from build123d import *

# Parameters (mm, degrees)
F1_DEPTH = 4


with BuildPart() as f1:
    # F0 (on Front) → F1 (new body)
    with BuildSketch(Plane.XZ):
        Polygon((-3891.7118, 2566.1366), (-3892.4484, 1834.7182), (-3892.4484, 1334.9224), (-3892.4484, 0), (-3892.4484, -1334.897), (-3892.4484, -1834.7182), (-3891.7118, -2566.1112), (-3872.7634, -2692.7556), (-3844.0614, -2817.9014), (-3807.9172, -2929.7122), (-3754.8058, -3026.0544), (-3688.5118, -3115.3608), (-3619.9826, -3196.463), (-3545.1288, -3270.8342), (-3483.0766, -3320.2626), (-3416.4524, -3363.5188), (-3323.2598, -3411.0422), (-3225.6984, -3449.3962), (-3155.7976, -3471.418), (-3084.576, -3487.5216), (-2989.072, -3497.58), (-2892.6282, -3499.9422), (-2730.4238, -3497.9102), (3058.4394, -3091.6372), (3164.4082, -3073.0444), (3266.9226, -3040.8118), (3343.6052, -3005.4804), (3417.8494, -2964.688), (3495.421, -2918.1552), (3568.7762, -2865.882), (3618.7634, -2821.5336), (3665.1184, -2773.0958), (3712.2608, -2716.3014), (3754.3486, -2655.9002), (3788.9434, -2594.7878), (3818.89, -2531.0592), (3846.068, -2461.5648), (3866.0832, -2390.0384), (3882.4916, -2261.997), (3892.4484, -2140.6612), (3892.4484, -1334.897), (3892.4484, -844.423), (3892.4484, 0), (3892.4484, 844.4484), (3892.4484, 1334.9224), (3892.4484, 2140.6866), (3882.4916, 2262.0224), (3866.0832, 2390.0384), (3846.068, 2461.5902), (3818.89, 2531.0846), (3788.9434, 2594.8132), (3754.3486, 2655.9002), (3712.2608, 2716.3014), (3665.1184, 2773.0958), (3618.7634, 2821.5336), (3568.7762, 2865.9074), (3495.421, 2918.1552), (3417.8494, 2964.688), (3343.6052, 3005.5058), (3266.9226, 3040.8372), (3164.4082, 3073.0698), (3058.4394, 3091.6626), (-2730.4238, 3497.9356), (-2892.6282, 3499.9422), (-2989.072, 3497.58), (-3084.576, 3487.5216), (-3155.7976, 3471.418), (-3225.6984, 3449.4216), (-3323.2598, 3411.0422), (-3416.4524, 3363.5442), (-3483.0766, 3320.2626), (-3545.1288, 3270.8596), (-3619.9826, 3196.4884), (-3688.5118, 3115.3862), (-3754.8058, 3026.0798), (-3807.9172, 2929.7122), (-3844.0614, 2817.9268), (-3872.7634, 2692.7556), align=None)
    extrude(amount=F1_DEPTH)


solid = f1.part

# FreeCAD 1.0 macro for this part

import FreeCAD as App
import Part
import Sketcher
from FreeCAD import Vector
Q = App.Units.Quantity


def add_polygon(sketch, points):
    """Adds a closed chain of lines whose ends are joined by coincident constraints."""
    first, n = sketch.GeometryCount, len(points)
    for a, b in zip(points, points[1:] + points[:1]):
        sketch.addGeometry(Part.LineSegment(App.Vector(*a, 0), App.Vector(*b, 0)), False)
    for i in range(n):
        sketch.addConstraint(Sketcher.Constraint("Coincident", first + i, 2, first + (i + 1) % n, 1))

doc = App.newDocument("Part")
params = doc.addObject("Spreadsheet::Sheet", "Params")
for row, (alias, value) in enumerate([
    ("sketch1_height", "144.466 in"),
    ("sketch1_height2", "168.557 in"),
    ("pad1_length", "4 mm"),
], start=1):
    params.set(f"A{row}", alias)
    params.set(f"B{row}", "=" + value)
    params.setAlias(f"B{row}", alias)

body = doc.addObject("PartDesign::Body", "Body")

# Sketch on XZ plane
sketch1 = body.newObject("Sketcher::SketchObject", "Sketch")
sketch1.AttachmentSupport = (doc.getObject("XZ_Plane"), [""])
sketch1.MapMode = "FlatFace"
add_polygon(sketch1, [(-3892, 2566), (-3892, 1835), (-3892, -1835), (-3892, -2566), (-3873, -2693), (-3844, -2818), (-3808, -2930), (-3755, -3026), (-3689, -3115), (-3620, -3196), (-3545, -3271), (-3483, -3320), (-3416, -3364), (-3323, -3411), (-3226, -3449), (-3156, -3471), (-3085, -3488), (-2989, -3498), (-2893, -3500), (-2730, -3498), (3058, -3092), (3164, -3073), (3267, -3041), (3344, -3005), (3418, -2965), (3495, -2918), (3569, -2866), (3619, -2822), (3665, -2773), (3712, -2716), (3754, -2656), (3789, -2595), (3819, -2531), (3846, -2462), (3866, -2390), (3882, -2262), (3892, -2141), (3892, 2141), (3882, 2262), (3866, 2390), (3846, 2462), (3819, 2531), (3789, 2595), (3754, 2656), (3712, 2716), (3665, 2773), (3619, 2822), (3569, 2866), (3495, 2918), (3418, 2965), (3344, 3006), (3267, 3041), (3164, 3073), (3058, 3092), (-2730, 3498), (-2893, 3500), (-2989, 3498), (-3085, 3488), (-3156, 3471), (-3226, 3449), (-3323, 3411), (-3416, 3364), (-3483, 3320), (-3545, 3271), (-3620, 3196), (-3689, 3115), (-3755, 3026), (-3808, 2930), (-3844, 2818), (-3873, 2693)])  # lines 0-69
sketch1.addConstraint(Sketcher.Constraint("Vertical", 1))
sketch1.addConstraint(Sketcher.Constraint("Vertical", 36))
sketch1.addConstraint(Sketcher.Constraint("Symmetric", 33, 2, 38, 2, -1))
sketch1.addConstraint(Sketcher.Constraint("Symmetric", 29, 2, 42, 2, -1))
sketch1.addConstraint(Sketcher.Constraint("Symmetric", 28, 2, 43, 2, -1))
sketch1.addConstraint(Sketcher.Constraint("Symmetric", 27, 2, 44, 2, -1))
sketch1.addConstraint(Sketcher.Constraint("Symmetric", 26, 2, 45, 2, -1))
sketch1.addConstraint(Sketcher.Constraint("Symmetric", 24, 2, 47, 2, -1))
sketch1.addConstraint(Sketcher.Constraint("Symmetric", 23, 2, 48, 2, -1))
sketch1.addConstraint(Sketcher.Constraint("Symmetric", 17, 2, 54, 2, -1))
sketch1.addConstraint(Sketcher.Constraint("Symmetric", 16, 2, 55, 2, -1))
sketch1.addConstraint(Sketcher.Constraint("Symmetric", 15, 2, 56, 2, -1))
sketch1.addConstraint(Sketcher.Constraint("Symmetric", 14, 2, 57, 2, -1))
sketch1.addConstraint(Sketcher.Constraint("Symmetric", 12, 2, 59, 2, -1))
sketch1.addConstraint(Sketcher.Constraint("Symmetric", 10, 2, 61, 2, -1))
sketch1.addConstraint(Sketcher.Constraint("Symmetric", 5, 2, 66, 2, -1))
sketch1.addConstraint(Sketcher.Constraint("Symmetric", 3, 2, 68, 2, -1))
sketch1.addConstraint(Sketcher.Constraint("Vertical", 34, 2, 37, 2))
sketch1.addConstraint(Sketcher.Constraint("Vertical", 32, 2, 39, 2))
sketch1.addConstraint(Sketcher.Constraint("Vertical", 31, 2, 40, 2))
sketch1.addConstraint(Sketcher.Constraint("Vertical", 30, 2, 41, 2))
sketch1.addConstraint(Sketcher.Constraint("Vertical", 25, 2, 46, 2))
sketch1.addConstraint(Sketcher.Constraint("Vertical", 22, 2, 49, 2))
sketch1.addConstraint(Sketcher.Constraint("Vertical", 21, 2, 50, 2))
sketch1.addConstraint(Sketcher.Constraint("Vertical", 20, 2, 51, 2))
sketch1.addConstraint(Sketcher.Constraint("Vertical", 19, 2, 52, 2))
sketch1.addConstraint(Sketcher.Constraint("Vertical", 18, 2, 53, 2))
sketch1.addConstraint(Sketcher.Constraint("Vertical", 13, 2, 58, 2))
sketch1.addConstraint(Sketcher.Constraint("Vertical", 11, 2, 60, 2))
sketch1.addConstraint(Sketcher.Constraint("Vertical", 9, 2, 62, 2))
sketch1.addConstraint(Sketcher.Constraint("Vertical", 8, 2, 63, 2))
sketch1.addConstraint(Sketcher.Constraint("Vertical", 7, 2, 64, 2))
sketch1.addConstraint(Sketcher.Constraint("Vertical", 6, 2, 65, 2))
sketch1.addConstraint(Sketcher.Constraint("Vertical", 4, 2, 67, 2))
sketch1.addConstraint(Sketcher.Constraint("Vertical", 2, 2, 69, 2))
sketch1.addConstraint(Sketcher.Constraint("Equal", 35, 37))
sketch1.addConstraint(Sketcher.Constraint("Equal", 32, 40))
sketch1.addConstraint(Sketcher.Constraint("Equal", 31, 41))
sketch1.addConstraint(Sketcher.Constraint("Equal", 22, 50))
sketch1.addConstraint(Sketcher.Constraint("Equal", 21, 51))
sketch1.addConstraint(Sketcher.Constraint("Equal", 20, 52))
sketch1.addConstraint(Sketcher.Constraint("Equal", 19, 53))
sketch1.addConstraint(Sketcher.Constraint("Equal", 9, 63))
sketch1.addConstraint(Sketcher.Constraint("Equal", 8, 64))
sketch1.addConstraint(Sketcher.Constraint("Equal", 7, 65))
sketch1.addConstraint(Sketcher.Constraint("DistanceY", 16, 2, -1, 1, Q("137.7 in")))
sketch1.addConstraint(Sketcher.Constraint("DistanceY", 1, 2, 1, 1, Q("144.466 in")))
sketch1.addConstraint(Sketcher.Constraint("DistanceY", 36, 1, 36, 2, Q("168.557 in")))
sketch1.addConstraint(Sketcher.Constraint("DistanceY", 14, 2, -1, 1, Q("136.67 in")))
sketch1.addConstraint(Sketcher.Constraint("DistanceX", 15, 2, -1, 1, Q("121.44 in")))
sketch1.addConstraint(Sketcher.Constraint("DistanceX", 16, 2, -1, 1, Q("117.68 in")))
sketch1.addConstraint(Sketcher.Constraint("DistanceY", 23, 2, -1, 1, Q("116.72 in")))
sketch1.addConstraint(Sketcher.Constraint("DistanceY", 25, 2, -1, 1, Q("112.83 in")))
sketch1.addConstraint(Sketcher.Constraint("DistanceX", -1, 1, 31, 2, Q("150.35 in")))
sketch1.addConstraint(Sketcher.Constraint("DistanceX", -1, 1, 32, 2, Q("151.42 in")))
sketch1.addConstraint(Sketcher.Constraint("DistanceX", 0, 2, -1, 1, Q("153.246 in")))
sketch1.addConstraint(Sketcher.Constraint("DistanceY", -1, 1, 0, 2, Q("72.233 in")))
sketch1.addConstraint(Sketcher.Constraint("DistanceX", 2, 2, -1, 1, Q("153.217 in")))
sketch1.addConstraint(Sketcher.Constraint("DistanceY", 2, 2, -1, 1, Q("101.028 in")))
sketch1.addConstraint(Sketcher.Constraint("DistanceX", 3, 2, -1, 1, Q("152.471 in")))
sketch1.addConstraint(Sketcher.Constraint("DistanceY", 3, 2, -1, 1, Q("106.014 in")))
sketch1.addConstraint(Sketcher.Constraint("DistanceX", 4, 2, -1, 1, Q("151.341 in")))
sketch1.addConstraint(Sketcher.Constraint("DistanceY", 4, 2, -1, 1, Q("110.941 in")))
sketch1.addConstraint(Sketcher.Constraint("DistanceX", 5, 2, -1, 1, Q("149.918 in")))
sketch1.addConstraint(Sketcher.Constraint("DistanceY", 5, 2, -1, 1, Q("115.343 in")))
sketch1.addConstraint(Sketcher.Constraint("DistanceX", 6, 2, -1, 1, Q("147.827 in")))
sketch1.addConstraint(Sketcher.Constraint("DistanceY", 6, 2, -1, 1, Q("119.136 in")))
sketch1.addConstraint(Sketcher.Constraint("DistanceX", 7, 2, -1, 1, Q("145.217 in")))
sketch1.addConstraint(Sketcher.Constraint("DistanceY", 7, 2, -1, 1, Q("122.652 in")))
sketch1.addConstraint(Sketcher.Constraint("DistanceX", 8, 2, -1, 1, Q("142.519 in")))
sketch1.addConstraint(Sketcher.Constraint("DistanceY", 8, 2, -1, 1, Q("125.845 in")))
sketch1.addConstraint(Sketcher.Constraint("DistanceX", 9, 2, -1, 1, Q("139.572 in")))
sketch1.addConstraint(Sketcher.Constraint("DistanceY", 9, 2, -1, 1, Q("128.773 in")))
sketch1.addConstraint(Sketcher.Constraint("DistanceX", 10, 2, -1, 1, Q("137.129 in")))
sketch1.addConstraint(Sketcher.Constraint("DistanceY", 10, 2, -1, 1, Q("130.719 in")))
sketch1.addConstraint(Sketcher.Constraint("DistanceX", 11, 2, -1, 1, Q("134.506 in")))
sketch1.addConstraint(Sketcher.Constraint("DistanceY", 11, 2, -1, 1, Q("132.422 in")))
sketch1.addConstraint(Sketcher.Constraint("DistanceX", 12, 2, -1, 1, Q("130.837 in")))
sketch1.addConstraint(Sketcher.Constraint("DistanceY", 12, 2, -1, 1, Q("134.293 in")))
sketch1.addConstraint(Sketcher.Constraint("DistanceX", 13, 2, -1, 1, Q("126.996 in")))
sketch1.addConstraint(Sketcher.Constraint("DistanceY", 13, 2, -1, 1, Q("135.803 in")))
sketch1.addConstraint(Sketcher.Constraint("DistanceX", 14, 2, -1, 1, Q("124.244 in")))
sketch1.addConstraint(Sketcher.Constraint("DistanceY", 15, 2, -1, 1, Q("137.304 in")))
sketch1.addConstraint(Sketcher.Constraint("DistanceX", 17, 2, -1, 1, Q("113.883 in")))
sketch1.addConstraint(Sketcher.Constraint("DistanceY", 17, 2, -1, 1, Q("137.793 in")))
sketch1.addConstraint(Sketcher.Constraint("DistanceX", 18, 2, -1, 1, Q("107.497 in")))
sketch1.addConstraint(Sketcher.Constraint("DistanceY", 18, 2, -1, 1, Q("137.713 in")))
sketch1.addConstraint(Sketcher.Constraint("DistanceX", -1, 1, 19, 2, Q("120.411 in")))
sketch1.addConstraint(Sketcher.Constraint("DistanceY", 19, 2, -1, 1, Q("121.718 in")))
sketch1.addConstraint(Sketcher.Constraint("DistanceX", -1, 1, 20, 2, Q("124.583 in")))
sketch1.addConstraint(Sketcher.Constraint("DistanceY", 20, 2, -1, 1, Q("120.986 in")))
sketch1.addConstraint(Sketcher.Constraint("DistanceX", -1, 1, 21, 2, Q("128.619 in")))
sketch1.addConstraint(Sketcher.Constraint("DistanceY", 21, 2, -1, 1, Q("119.717 in")))
sketch1.addConstraint(Sketcher.Constraint("DistanceX", -1, 1, 22, 2, Q("131.638 in")))
sketch1.addConstraint(Sketcher.Constraint("DistanceY", 22, 2, -1, 1, Q("118.326 in")))
sketch1.addConstraint(Sketcher.Constraint("DistanceX", -1, 1, 23, 2, Q("134.561 in")))
sketch1.addConstraint(Sketcher.Constraint("DistanceX", -1, 1, 24, 2, Q("137.615 in")))
sketch1.addConstraint(Sketcher.Constraint("DistanceY", 24, 2, -1, 1, Q("114.888 in")))
sketch1.addConstraint(Sketcher.Constraint("DistanceX", -1, 1, 25, 2, Q("140.503 in")))
sketch1.addConstraint(Sketcher.Constraint("DistanceX", -1, 1, 26, 2, Q("142.471 in")))
sketch1.addConstraint(Sketcher.Constraint("DistanceY", 26, 2, -1, 1, Q("111.084 in")))
sketch1.addConstraint(Sketcher.Constraint("DistanceX", -1, 1, 27, 2, Q("144.296 in")))
sketch1.addConstraint(Sketcher.Constraint("DistanceY", 27, 2, -1, 1, Q("109.177 in")))
sketch1.addConstraint(Sketcher.Constraint("DistanceX", -1, 1, 28, 2, Q("146.152 in")))
sketch1.addConstraint(Sketcher.Constraint("DistanceY", 28, 2, -1, 1, Q("106.941 in")))
sketch1.addConstraint(Sketcher.Constraint("DistanceX", -1, 1, 29, 2, Q("147.809 in")))
sketch1.addConstraint(Sketcher.Constraint("DistanceY", 29, 2, -1, 1, Q("104.563 in")))
sketch1.addConstraint(Sketcher.Constraint("DistanceX", -1, 1, 30, 2, Q("149.171 in")))
sketch1.addConstraint(Sketcher.Constraint("DistanceY", 30, 2, -1, 1, Q("102.157 in")))
sketch1.addConstraint(Sketcher.Constraint("DistanceY", 31, 2, -1, 1, Q("99.648 in")))
sketch1.addConstraint(Sketcher.Constraint("DistanceY", 32, 2, -1, 1, Q("96.912 in")))
sketch1.addConstraint(Sketcher.Constraint("DistanceX", -1, 1, 33, 2, Q("152.208 in")))
sketch1.addConstraint(Sketcher.Constraint("DistanceY", 33, 2, -1, 1, Q("94.096 in")))
sketch1.addConstraint(Sketcher.Constraint("DistanceX", -1, 1, 34, 2, Q("152.854 in")))
sketch1.addConstraint(Sketcher.Constraint("DistanceY", 34, 2, -1, 1, Q("89.055 in")))
sketch1.addConstraint(Sketcher.Constraint("DistanceX", -1, 1, 35, 2, Q("153.246 in")))
sketch1.addConstraint(Sketcher.Constraint("DistanceY", 35, 2, -1, 1, Q("84.278 in")))
sketch1.addConstraint(Sketcher.Constraint("DistanceY", -1, 1, 39, 2, Q("96.913 in")))
sketch1.addConstraint(Sketcher.Constraint("DistanceY", -1, 1, 46, 2, Q("112.831 in")))
sketch1.addConstraint(Sketcher.Constraint("DistanceY", -1, 1, 49, 2, Q("118.327 in")))
sketch1.addConstraint(Sketcher.Constraint("DistanceY", -1, 1, 58, 2, Q("135.804 in")))
sketch1.addConstraint(Sketcher.Constraint("DistanceY", -1, 1, 60, 2, Q("132.423 in")))
sketch1.addConstraint(Sketcher.Constraint("DistanceY", -1, 1, 62, 2, Q("128.774 in")))
sketch1.addConstraint(Sketcher.Constraint("DistanceY", -1, 1, 67, 2, Q("110.942 in")))
sketch1.addConstraint(Sketcher.Constraint("DistanceY", -1, 1, 69, 2, Q("101.029 in")))
sketch1.setExpression("Constraints[116]", "Params.sketch1_height")
sketch1.setExpression("Constraints[117]", "Params.sketch1_height2")
pad1 = body.newObject("PartDesign::Pad", "Pad")
pad1.Profile = sketch1
pad1.setExpression("Length", "Params.pad1_length")

doc.recompute()
